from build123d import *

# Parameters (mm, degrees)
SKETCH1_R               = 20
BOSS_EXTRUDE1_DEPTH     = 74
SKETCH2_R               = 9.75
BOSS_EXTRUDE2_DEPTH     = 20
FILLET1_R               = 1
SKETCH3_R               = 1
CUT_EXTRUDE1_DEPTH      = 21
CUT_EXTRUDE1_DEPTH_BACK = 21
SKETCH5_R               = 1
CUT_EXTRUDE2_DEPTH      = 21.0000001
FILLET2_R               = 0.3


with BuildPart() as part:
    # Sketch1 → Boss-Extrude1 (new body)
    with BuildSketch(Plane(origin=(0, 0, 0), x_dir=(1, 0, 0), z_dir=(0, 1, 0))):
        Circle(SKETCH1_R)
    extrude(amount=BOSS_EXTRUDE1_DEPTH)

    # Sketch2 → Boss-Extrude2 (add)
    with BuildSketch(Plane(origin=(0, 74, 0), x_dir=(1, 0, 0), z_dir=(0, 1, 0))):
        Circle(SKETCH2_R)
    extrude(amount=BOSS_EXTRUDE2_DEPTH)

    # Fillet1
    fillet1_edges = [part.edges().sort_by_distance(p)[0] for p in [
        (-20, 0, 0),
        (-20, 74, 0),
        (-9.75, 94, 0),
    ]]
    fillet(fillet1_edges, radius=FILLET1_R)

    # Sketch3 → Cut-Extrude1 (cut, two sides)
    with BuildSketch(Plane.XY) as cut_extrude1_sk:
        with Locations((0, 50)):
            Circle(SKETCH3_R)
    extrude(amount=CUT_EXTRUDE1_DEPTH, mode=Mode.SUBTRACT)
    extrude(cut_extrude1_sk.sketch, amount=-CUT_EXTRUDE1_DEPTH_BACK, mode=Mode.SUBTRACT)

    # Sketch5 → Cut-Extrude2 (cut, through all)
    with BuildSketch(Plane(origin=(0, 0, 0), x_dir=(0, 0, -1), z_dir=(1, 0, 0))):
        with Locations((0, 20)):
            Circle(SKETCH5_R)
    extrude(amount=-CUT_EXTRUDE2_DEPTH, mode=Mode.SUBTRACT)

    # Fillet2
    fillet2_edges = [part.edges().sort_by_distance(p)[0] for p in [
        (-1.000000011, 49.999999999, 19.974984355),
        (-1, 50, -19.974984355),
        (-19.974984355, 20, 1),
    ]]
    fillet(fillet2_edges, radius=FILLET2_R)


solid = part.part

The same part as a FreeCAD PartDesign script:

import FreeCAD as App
import Part
import Sketcher

V = App.Vector


def edges_at(feature, points):
    """Names of the edges that pass closest to the given points."""
    edges = feature.Shape.Edges
    near = lambda p: min(range(len(edges)), key=lambda i: edges[i].distToShape(Part.Vertex(*p))[0])
    return sorted({f"Edge{near(p) + 1}" for p in points})

doc = App.newDocument("Part")
body = doc.addObject("PartDesign::Body", "Body")

# Sketch on XZ plane
sketch1 = doc.addObject("Sketcher::SketchObject", "Sketch")
body.addObject(sketch1)
sketch1.AttachmentSupport = (doc.XZ_Plane, [""])
sketch1.MapMode = "FlatFace"
sketch1.addGeometry(Part.Circle(V(0, 0, 0), V(0, 0, 1), 20), False)
sketch1.addConstraint([
    Sketcher.Constraint("Coincident", 0, 3, -1, 1),
    Sketcher.Constraint("Diameter", 0, 40.0),
])
pad1 = doc.addObject("PartDesign::Pad", "Pad")
body.addObject(pad1)
pad1.Profile = sketch1
pad1.Length = 74
pad1.Reversed = True

# Sketch on XZ plane
sketch2 = doc.addObject("Sketcher::SketchObject", "Sketch001")
body.addObject(sketch2)
sketch2.AttachmentSupport = (doc.XZ_Plane, [""])
sketch2.MapMode = "FlatFace"
sketch2.AttachmentOffset = App.Placement(V(0, 0, -74), App.Rotation())
sketch2.addGeometry(Part.Circle(V(0, 0, 0), V(0, 0, 1), 10), False)
sketch2.addConstraint([
    Sketcher.Constraint("Coincident", 0, 3, -1, 1),
    Sketcher.Constraint("Diameter", 0, 19.5),
])
pad2 = doc.addObject("PartDesign::Pad", "Pad001")
body.addObject(pad2)
pad2.Profile = sketch2
pad2.Length = 20
pad2.Reversed = True
doc.recompute()

fillet = doc.addObject("PartDesign::Fillet", "Fillet")
body.addObject(fillet)
fillet.Base = (pad2, edges_at(pad2, [(-20, 0, 0), (-20, 74, 0), (-9.75, 94, 0)]))
fillet.Radius = 1

# Sketch on XY plane
sketch3 = doc.addObject("Sketcher::SketchObject", "Sketch002")
body.addObject(sketch3)
sketch3.AttachmentSupport = (doc.XY_Plane, [""])
sketch3.MapMode = "FlatFace"
sketch3.addGeometry(Part.Circle(V(0, 50, 0), V(0, 0, 1), 1), False)
sketch3.addConstraint([
    Sketcher.Constraint("PointOnObject", 0, 3, -2),
    Sketcher.Constraint("Diameter", 0, 2.0),
    Sketcher.Constraint("DistanceY", -1, 1, 0, 3, 50.0),
])
pocket1 = doc.addObject("PartDesign::Pocket", "Pocket")
body.addObject(pocket1)
pocket1.Profile = sketch3
pocket1.Type = "ThroughAll"
pocket1.Midplane = True

# Sketch on YZ plane
sketch4 = doc.addObject("Sketcher::SketchObject", "Sketch003")
body.addObject(sketch4)
sketch4.AttachmentSupport = (doc.YZ_Plane, [""])
sketch4.MapMode = "FlatFace"
sketch4.addGeometry(Part.Circle(V(20, 0, 0), V(0, 0, 1), 1), False)
sketch4.addConstraint([
    Sketcher.Constraint("PointOnObject", 0, 3, -1),
    Sketcher.Constraint("Diameter", 0, 2.0),
    Sketcher.Constraint("DistanceX", -1, 1, 0, 3, 20.0),
])
pocket2 = doc.addObject("PartDesign::Pocket", "Pocket001")
body.addObject(pocket2)
pocket2.Profile = sketch4
pocket2.Type = "ThroughAll"
doc.recompute()

fillet2 = doc.addObject("PartDesign::Fillet", "Fillet001")
body.addObject(fillet2)
fillet2.Base = (pocket2, edges_at(pocket2, [(-1, 50, 19.975), (-1, 50, -19.975), (-19.975, 20, 1)]))
fillet2.Radius = 0.3

doc.recompute()
